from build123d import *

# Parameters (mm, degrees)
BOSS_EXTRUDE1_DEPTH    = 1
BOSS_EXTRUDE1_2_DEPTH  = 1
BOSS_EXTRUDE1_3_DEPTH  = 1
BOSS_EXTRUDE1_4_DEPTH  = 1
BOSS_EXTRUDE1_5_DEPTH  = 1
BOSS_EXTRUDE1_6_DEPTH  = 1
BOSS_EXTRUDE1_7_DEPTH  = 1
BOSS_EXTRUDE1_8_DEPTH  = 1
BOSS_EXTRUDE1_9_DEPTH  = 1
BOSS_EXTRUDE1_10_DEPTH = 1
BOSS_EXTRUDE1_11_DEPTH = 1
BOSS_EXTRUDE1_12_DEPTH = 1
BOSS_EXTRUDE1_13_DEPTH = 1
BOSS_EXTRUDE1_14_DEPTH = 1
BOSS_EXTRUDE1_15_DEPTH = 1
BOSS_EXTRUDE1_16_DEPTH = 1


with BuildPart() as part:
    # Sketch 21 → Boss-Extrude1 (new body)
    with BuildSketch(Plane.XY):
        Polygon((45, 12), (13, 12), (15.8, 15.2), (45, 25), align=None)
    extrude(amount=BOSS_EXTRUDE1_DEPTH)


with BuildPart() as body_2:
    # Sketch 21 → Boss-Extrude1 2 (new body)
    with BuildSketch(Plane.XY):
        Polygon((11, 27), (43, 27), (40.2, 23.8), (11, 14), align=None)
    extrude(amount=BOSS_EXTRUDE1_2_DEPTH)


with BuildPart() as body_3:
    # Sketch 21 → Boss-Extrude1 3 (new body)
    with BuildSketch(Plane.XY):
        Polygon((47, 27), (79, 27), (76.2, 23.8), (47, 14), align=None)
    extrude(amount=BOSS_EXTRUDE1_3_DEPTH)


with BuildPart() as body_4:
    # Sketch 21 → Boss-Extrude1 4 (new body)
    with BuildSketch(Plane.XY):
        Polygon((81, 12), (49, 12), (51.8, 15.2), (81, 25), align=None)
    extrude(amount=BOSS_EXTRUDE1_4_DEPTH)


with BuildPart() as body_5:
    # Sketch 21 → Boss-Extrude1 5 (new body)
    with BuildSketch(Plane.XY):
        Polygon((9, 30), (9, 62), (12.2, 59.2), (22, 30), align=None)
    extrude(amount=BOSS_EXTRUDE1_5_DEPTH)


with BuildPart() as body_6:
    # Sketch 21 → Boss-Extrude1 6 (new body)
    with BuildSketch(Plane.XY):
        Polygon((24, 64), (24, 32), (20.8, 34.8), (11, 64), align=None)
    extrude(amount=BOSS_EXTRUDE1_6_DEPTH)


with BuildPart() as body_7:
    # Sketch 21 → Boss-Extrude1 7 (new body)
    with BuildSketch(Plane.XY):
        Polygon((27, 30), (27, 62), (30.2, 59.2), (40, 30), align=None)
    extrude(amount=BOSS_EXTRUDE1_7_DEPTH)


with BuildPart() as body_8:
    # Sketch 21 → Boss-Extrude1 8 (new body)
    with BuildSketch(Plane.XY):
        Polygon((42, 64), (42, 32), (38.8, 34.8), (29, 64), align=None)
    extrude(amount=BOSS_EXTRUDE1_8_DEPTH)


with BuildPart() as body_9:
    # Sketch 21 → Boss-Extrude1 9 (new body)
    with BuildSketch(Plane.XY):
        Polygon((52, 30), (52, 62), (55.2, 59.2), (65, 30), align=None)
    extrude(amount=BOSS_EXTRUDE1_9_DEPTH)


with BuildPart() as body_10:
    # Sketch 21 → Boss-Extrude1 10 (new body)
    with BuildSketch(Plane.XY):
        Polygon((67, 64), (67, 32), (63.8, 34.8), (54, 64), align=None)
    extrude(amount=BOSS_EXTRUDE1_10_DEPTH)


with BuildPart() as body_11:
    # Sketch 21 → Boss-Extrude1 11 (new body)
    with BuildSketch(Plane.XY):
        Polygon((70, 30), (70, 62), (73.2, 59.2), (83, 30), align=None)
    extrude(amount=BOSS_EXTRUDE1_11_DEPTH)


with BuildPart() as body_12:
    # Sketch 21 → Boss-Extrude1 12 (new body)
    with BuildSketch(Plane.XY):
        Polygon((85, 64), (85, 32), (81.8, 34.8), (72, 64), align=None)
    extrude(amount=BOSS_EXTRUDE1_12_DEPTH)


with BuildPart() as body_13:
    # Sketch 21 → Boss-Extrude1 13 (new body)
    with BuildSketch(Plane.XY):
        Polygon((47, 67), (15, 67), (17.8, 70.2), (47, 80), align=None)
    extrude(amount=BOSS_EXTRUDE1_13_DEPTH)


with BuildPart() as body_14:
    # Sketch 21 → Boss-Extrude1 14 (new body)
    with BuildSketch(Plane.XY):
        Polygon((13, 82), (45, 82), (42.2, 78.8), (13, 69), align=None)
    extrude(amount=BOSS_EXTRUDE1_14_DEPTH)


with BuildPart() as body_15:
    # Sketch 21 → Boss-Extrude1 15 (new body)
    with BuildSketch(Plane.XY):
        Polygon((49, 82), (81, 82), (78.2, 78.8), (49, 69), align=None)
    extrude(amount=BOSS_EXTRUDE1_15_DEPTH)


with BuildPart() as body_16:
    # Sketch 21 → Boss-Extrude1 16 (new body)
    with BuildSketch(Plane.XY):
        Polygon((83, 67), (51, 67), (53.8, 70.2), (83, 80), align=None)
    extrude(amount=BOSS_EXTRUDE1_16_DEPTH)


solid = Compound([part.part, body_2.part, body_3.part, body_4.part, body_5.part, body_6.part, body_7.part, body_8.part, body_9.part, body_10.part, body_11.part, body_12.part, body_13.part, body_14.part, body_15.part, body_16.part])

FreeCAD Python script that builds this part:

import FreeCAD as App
import Part
import Sketcher

V = App.Vector

doc = App.newDocument("Part")
body = doc.addObject("PartDesign::Body", "Body")

# Sketch on XY plane
sketch1 = doc.addObject("Sketcher::SketchObject", "Sketch")
body.addObject(sketch1)
sketch1.AttachmentSupport = (doc.XY_Plane, [""])
sketch1.MapMode = "FlatFace"
sketch1.addGeometry([
    Part.LineSegment(V(13, 12, 0), V(45, 12, 0)),
    Part.LineSegment(V(45, 12, 0), V(45, 25, 0)),
    Part.LineSegment(V(45, 25, 0), V(15.8, 15.2, 0)),
    Part.LineSegment(V(15.8, 15.2, 0), V(13, 12, 0)),
], False)
sketch1.addConstraint([
    Sketcher.Constraint("Coincident", 0, 2, 1, 1),
    Sketcher.Constraint("Coincident", 1, 2, 2, 1),
    Sketcher.Constraint("Coincident", 2, 2, 3, 1),
    Sketcher.Constraint("Coincident", 3, 2, 0, 1),
    Sketcher.Constraint("Horizontal", 0),
    Sketcher.Constraint("Vertical", 1),
    Sketcher.Constraint("DistanceX", 0, 1, 0, 2, 32.0),
    Sketcher.Constraint("DistanceY", 1, 1, 1, 2, 13.0),
    Sketcher.Constraint("DistanceX", -1, 1, 0, 2, 45.0),
    Sketcher.Constraint("DistanceY", -1, 1, 0, 2, 12.0),
    Sketcher.Constraint("DistanceX", -1, 1, 2, 2, 15.8),
    Sketcher.Constraint("DistanceY", -1, 1, 2, 2, 15.2),
])
pad1 = doc.addObject("PartDesign::Pad", "Pad")
body.addObject(pad1)
pad1.Profile = sketch1
pad1.Length = 1
body2 = doc.addObject("PartDesign::Body", "Body001")

# Sketch on XY plane
sketch2 = doc.addObject("Sketcher::SketchObject", "Sketch001")
body2.addObject(sketch2)
sketch2.AttachmentSupport = (doc.getObject("XY_Plane001"), [""])
sketch2.MapMode = "FlatFace"
sketch2.addGeometry([
    Part.LineSegment(V(43, 27, 0), V(11, 27, 0)),
    Part.LineSegment(V(11, 27, 0), V(11, 14, 0)),
    Part.LineSegment(V(11, 14, 0), V(40.2, 23.8, 0)),
    Part.LineSegment(V(40.2, 23.8, 0), V(43, 27, 0)),
], False)
sketch2.addConstraint([
    Sketcher.Constraint("Coincident", 0, 2, 1, 1),
    Sketcher.Constraint("Coincident", 1, 2, 2, 1),
    Sketcher.Constraint("Coincident", 2, 2, 3, 1),
    Sketcher.Constraint("Coincident", 3, 2, 0, 1),
    Sketcher.Constraint("Horizontal", 0),
    Sketcher.Constraint("Vertical", 1),
    Sketcher.Constraint("DistanceX", 0, 2, 0, 1, 32.0),
    Sketcher.Constraint("DistanceY", 1, 2, 1, 1, 13.0),
    Sketcher.Constraint("DistanceX", -1, 1, 0, 2, 11.0),
    Sketcher.Constraint("DistanceY", -1, 1, 0, 2, 27.0),
    Sketcher.Constraint("DistanceX", -1, 1, 2, 2, 40.2),
    Sketcher.Constraint("DistanceY", -1, 1, 2, 2, 23.8),
])
pad2 = doc.addObject("PartDesign::Pad", "Pad001")
body2.addObject(pad2)
pad2.Profile = sketch2
pad2.Length = 1
body3 = doc.addObject("PartDesign::Body", "Body002")

# Sketch on XY plane
sketch3 = doc.addObject("Sketcher::SketchObject", "Sketch002")
body3.addObject(sketch3)
sketch3.AttachmentSupport = (doc.getObject("XY_Plane002"), [""])
sketch3.MapMode = "FlatFace"
sketch3.addGeometry([
    Part.LineSegment(V(79, 27, 0), V(47, 27, 0)),
    Part.LineSegment(V(47, 27, 0), V(47, 14, 0)),
    Part.LineSegment(V(47, 14, 0), V(76.2, 23.8, 0)),
    Part.LineSegment(V(76.2, 23.8, 0), V(79, 27, 0)),
], False)
sketch3.addConstraint([
    Sketcher.Constraint("Coincident", 0, 2, 1, 1),
    Sketcher.Constraint("Coincident", 1, 2, 2, 1),
    Sketcher.Constraint("Coincident", 2, 2, 3, 1),
    Sketcher.Constraint("Coincident", 3, 2, 0, 1),
    Sketcher.Constraint("Horizontal", 0),
    Sketcher.Constraint("Vertical", 1),
    Sketcher.Constraint("DistanceX", 0, 2, 0, 1, 32.0),
    Sketcher.Constraint("DistanceY", 1, 2, 1, 1, 13.0),
    Sketcher.Constraint("DistanceX", -1, 1, 0, 2, 47.0),
    Sketcher.Constraint("DistanceY", -1, 1, 0, 2, 27.0),
    Sketcher.Constraint("DistanceX", -1, 1, 2, 2, 76.2),
    Sketcher.Constraint("DistanceY", -1, 1, 2, 2, 23.8),
])
pad3 = doc.addObject("PartDesign::Pad", "Pad002")
body3.addObject(pad3)
pad3.Profile = sketch3
pad3.Length = 1
body4 = doc.addObject("PartDesign::Body", "Body003")

# Sketch on XY plane
sketch4 = doc.addObject("Sketcher::SketchObject", "Sketch003")
body4.addObject(sketch4)
sketch4.AttachmentSupport = (doc.getObject("XY_Plane003"), [""])
sketch4.MapMode = "FlatFace"
sketch4.addGeometry([
    Part.LineSegment(V(49, 12, 0), V(81, 12, 0)),
    Part.LineSegment(V(81, 12, 0), V(81, 25, 0)),
    Part.LineSegment(V(81, 25, 0), V(51.8, 15.2, 0)),
    Part.LineSegment(V(51.8, 15.2, 0), V(49, 12, 0)),
], False)
sketch4.addConstraint([
    Sketcher.Constraint("Coincident", 0, 2, 1, 1),
    Sketcher.Constraint("Coincident", 1, 2, 2, 1),
    Sketcher.Constraint("Coincident", 2, 2, 3, 1),
    Sketcher.Constraint("Coincident", 3, 2, 0, 1),
    Sketcher.Constraint("Horizontal", 0),
    Sketcher.Constraint("Vertical", 1),
    Sketcher.Constraint("DistanceX", 0, 1, 0, 2, 32.0),
    Sketcher.Constraint("DistanceY", 1, 1, 1, 2, 13.0),
    Sketcher.Constraint("DistanceX", -1, 1, 0, 2, 81.0),
    Sketcher.Constraint("DistanceY", -1, 1, 0, 2, 12.0),
    Sketcher.Constraint("DistanceX", -1, 1, 2, 2, 51.8),
    Sketcher.Constraint("DistanceY", -1, 1, 2, 2, 15.2),
])
pad4 = doc.addObject("PartDesign::Pad", "Pad003")
body4.addObject(pad4)
pad4.Profile = sketch4
pad4.Length = 1
body5 = doc.addObject("PartDesign::Body", "Body004")

# Sketch on XY plane
sketch5 = doc.addObject("Sketcher::SketchObject", "Sketch004")
body5.addObject(sketch5)
sketch5.AttachmentSupport = (doc.getObject("XY_Plane004"), [""])
sketch5.MapMode = "FlatFace"
sketch5.addGeometry([
    Part.LineSegment(V(9, 62, 0), V(9, 30, 0)),
    Part.LineSegment(V(9, 30, 0), V(22, 30, 0)),
    Part.LineSegment(V(22, 30, 0), V(12.2, 59.2, 0)),
    Part.LineSegment(V(12.2, 59.2, 0), V(9, 62, 0)),
], False)
sketch5.addConstraint([
    Sketcher.Constraint("Coincident", 0, 2, 1, 1),
    Sketcher.Constraint("Coincident", 1, 2, 2, 1),
    Sketcher.Constraint("Coincident", 2, 2, 3, 1),
    Sketcher.Constraint("Coincident", 3, 2, 0, 1),
    Sketcher.Constraint("Vertical", 0),
    Sketcher.Constraint("Horizontal", 1),
    Sketcher.Constraint("DistanceX", 1, 1, 1, 2, 13.0),
    Sketcher.Constraint("DistanceY", 0, 2, 0, 1, 32.0),
    Sketcher.Constraint("DistanceX", -1, 1, 0, 2, 9.0),
    Sketcher.Constraint("DistanceY", -1, 1, 0, 2, 30.0),
    Sketcher.Constraint("DistanceX", -1, 1, 2, 2, 12.2),
    Sketcher.Constraint("DistanceY", -1, 1, 2, 2, 59.2),
])
pad5 = doc.addObject("PartDesign::Pad", "Pad004")
body5.addObject(pad5)
pad5.Profile = sketch5
pad5.Length = 1
body6 = doc.addObject("PartDesign::Body", "Body005")

# Sketch on XY plane
sketch6 = doc.addObject("Sketcher::SketchObject", "Sketch005")
body6.addObject(sketch6)
sketch6.AttachmentSupport = (doc.getObject("XY_Plane005"), [""])
sketch6.MapMode = "FlatFace"
sketch6.addGeometry([
    Part.LineSegment(V(24, 32, 0), V(24, 64, 0)),
    Part.LineSegment(V(24, 64, 0), V(11, 64, 0)),
    Part.LineSegment(V(11, 64, 0), V(20.8, 34.8, 0)),
    Part.LineSegment(V(20.8, 34.8, 0), V(24, 32, 0)),
], False)
sketch6.addConstraint([
    Sketcher.Constraint("Coincident", 0, 2, 1, 1),
    Sketcher.Constraint("Coincident", 1, 2, 2, 1),
    Sketcher.Constraint("Coincident", 2, 2, 3, 1),
    Sketcher.Constraint("Coincident", 3, 2, 0, 1),
    Sketcher.Constraint("Vertical", 0),
    Sketcher.Constraint("Horizontal", 1),
    Sketcher.Constraint("DistanceX", 1, 2, 1, 1, 13.0),
    Sketcher.Constraint("DistanceY", 0, 1, 0, 2, 32.0),
    Sketcher.Constraint("DistanceX", -1, 1, 0, 2, 24.0),
    Sketcher.Constraint("DistanceY", -1, 1, 0, 2, 64.0),
    Sketcher.Constraint("DistanceX", -1, 1, 2, 2, 20.8),
    Sketcher.Constraint("DistanceY", -1, 1, 2, 2, 34.8),
])
pad6 = doc.addObject("PartDesign::Pad", "Pad005")
body6.addObject(pad6)
pad6.Profile = sketch6
pad6.Length = 1
body7 = doc.addObject("PartDesign::Body", "Body006")

# Sketch on XY plane
sketch7 = doc.addObject("Sketcher::SketchObject", "Sketch006")
body7.addObject(sketch7)
sketch7.AttachmentSupport = (doc.getObject("XY_Plane006"), [""])
sketch7.MapMode = "FlatFace"
sketch7.addGeometry([
    Part.LineSegment(V(27, 62, 0), V(27, 30, 0)),
    Part.LineSegment(V(27, 30, 0), V(40, 30, 0)),
    Part.LineSegment(V(40, 30, 0), V(30.2, 59.2, 0)),
    Part.LineSegment(V(30.2, 59.2, 0), V(27, 62, 0)),
], False)
sketch7.addConstraint([
    Sketcher.Constraint("Coincident", 0, 2, 1, 1),
    Sketcher.Constraint("Coincident", 1, 2, 2, 1),
    Sketcher.Constraint("Coincident", 2, 2, 3, 1),
    Sketcher.Constraint("Coincident", 3, 2, 0, 1),
    Sketcher.Constraint("Vertical", 0),
    Sketcher.Constraint("Horizontal", 1),
    Sketcher.Constraint("DistanceX", 1, 1, 1, 2, 13.0),
    Sketcher.Constraint("DistanceY", 0, 2, 0, 1, 32.0),
    Sketcher.Constraint("DistanceX", -1, 1, 0, 2, 27.0),
    Sketcher.Constraint("DistanceY", -1, 1, 0, 2, 30.0),
    Sketcher.Constraint("DistanceX", -1, 1, 2, 2, 30.2),
    Sketcher.Constraint("DistanceY", -1, 1, 2, 2, 59.2),
])
pad7 = doc.addObject("PartDesign::Pad", "Pad006")
body7.addObject(pad7)
pad7.Profile = sketch7
pad7.Length = 1
body8 = doc.addObject("PartDesign::Body", "Body007")

# Sketch on XY plane
sketch8 = doc.addObject("Sketcher::SketchObject", "Sketch007")
body8.addObject(sketch8)
sketch8.AttachmentSupport = (doc.getObject("XY_Plane007"), [""])
sketch8.MapMode = "FlatFace"
sketch8.addGeometry([
    Part.LineSegment(V(42, 32, 0), V(42, 64, 0)),
    Part.LineSegment(V(42, 64, 0), V(29, 64, 0)),
    Part.LineSegment(V(29, 64, 0), V(38.8, 34.8, 0)),
    Part.LineSegment(V(38.8, 34.8, 0), V(42, 32, 0)),
], False)
sketch8.addConstraint([
    Sketcher.Constraint("Coincident", 0, 2, 1, 1),
    Sketcher.Constraint("Coincident", 1, 2, 2, 1),
    Sketcher.Constraint("Coincident", 2, 2, 3, 1),
    Sketcher.Constraint("Coincident", 3, 2, 0, 1),
    Sketcher.Constraint("Vertical", 0),
    Sketcher.Constraint("Horizontal", 1),
    Sketcher.Constraint("DistanceX", 1, 2, 1, 1, 13.0),
    Sketcher.Constraint("DistanceY", 0, 1, 0, 2, 32.0),
    Sketcher.Constraint("DistanceX", -1, 1, 0, 2, 42.0),
    Sketcher.Constraint("DistanceY", -1, 1, 0, 2, 64.0),
    Sketcher.Constraint("DistanceX", -1, 1, 2, 2, 38.8),
    Sketcher.Constraint("DistanceY", -1, 1, 2, 2, 34.8),
])
pad8 = doc.addObject("PartDesign::Pad", "Pad007")
body8.addObject(pad8)
pad8.Profile = sketch8
pad8.Length = 1
body9 = doc.addObject("PartDesign::Body", "Body008")

# Sketch on XY plane
sketch9 = doc.addObject("Sketcher::SketchObject", "Sketch008")
body9.addObject(sketch9)
sketch9.AttachmentSupport = (doc.getObject("XY_Plane008"), [""])
sketch9.MapMode = "FlatFace"
sketch9.addGeometry([
    Part.LineSegment(V(52, 62, 0), V(52, 30, 0)),
    Part.LineSegment(V(52, 30, 0), V(65, 30, 0)),
    Part.LineSegment(V(65, 30, 0), V(55.2, 59.2, 0)),
    Part.LineSegment(V(55.2, 59.2, 0), V(52, 62, 0)),
], False)
sketch9.addConstraint([
    Sketcher.Constraint("Coincident", 0, 2, 1, 1),
    Sketcher.Constraint("Coincident", 1, 2, 2, 1),
    Sketcher.Constraint("Coincident", 2, 2, 3, 1),
    Sketcher.Constraint("Coincident", 3, 2, 0, 1),
    Sketcher.Constraint("Vertical", 0),
    Sketcher.Constraint("Horizontal", 1),
    Sketcher.Constraint("DistanceX", 1, 1, 1, 2, 13.0),
    Sketcher.Constraint("DistanceY", 0, 2, 0, 1, 32.0),
    Sketcher.Constraint("DistanceX", -1, 1, 0, 2, 52.0),
    Sketcher.Constraint("DistanceY", -1, 1, 0, 2, 30.0),
    Sketcher.Constraint("DistanceX", -1, 1, 2, 2, 55.2),
    Sketcher.Constraint("DistanceY", -1, 1, 2, 2, 59.2),
])
pad9 = doc.addObject("PartDesign::Pad", "Pad008")
body9.addObject(pad9)
pad9.Profile = sketch9
pad9.Length = 1
body10 = doc.addObject("PartDesign::Body", "Body009")

# Sketch on XY plane
sketch10 = doc.addObject("Sketcher::SketchObject", "Sketch009")
body10.addObject(sketch10)
sketch10.AttachmentSupport = (doc.getObject("XY_Plane009"), [""])
sketch10.MapMode = "FlatFace"
sketch10.addGeometry([
    Part.LineSegment(V(67, 32, 0), V(67, 64, 0)),
    Part.LineSegment(V(67, 64, 0), V(54, 64, 0)),
    Part.LineSegment(V(54, 64, 0), V(63.8, 34.8, 0)),
    Part.LineSegment(V(63.8, 34.8, 0), V(67, 32, 0)),
], False)
sketch10.addConstraint([
    Sketcher.Constraint("Coincident", 0, 2, 1, 1),
    Sketcher.Constraint("Coincident", 1, 2, 2, 1),
    Sketcher.Constraint("Coincident", 2, 2, 3, 1),
    Sketcher.Constraint("Coincident", 3, 2, 0, 1),
    Sketcher.Constraint("Vertical", 0),
    Sketcher.Constraint("Horizontal", 1),
    Sketcher.Constraint("DistanceX", 1, 2, 1, 1, 13.0),
    Sketcher.Constraint("DistanceY", 0, 1, 0, 2, 32.0),
    Sketcher.Constraint("DistanceX", -1, 1, 0, 2, 67.0),
    Sketcher.Constraint("DistanceY", -1, 1, 0, 2, 64.0),
    Sketcher.Constraint("DistanceX", -1, 1, 2, 2, 63.8),
    Sketcher.Constraint("DistanceY", -1, 1, 2, 2, 34.8),
])
pad10 = doc.addObject("PartDesign::Pad", "Pad009")
body10.addObject(pad10)
pad10.Profile = sketch10
pad10.Length = 1
body11 = doc.addObject("PartDesign::Body", "Body010")

# Sketch on XY plane
sketch11 = doc.addObject("Sketcher::SketchObject", "Sketch010")
body11.addObject(sketch11)
sketch11.AttachmentSupport = (doc.getObject("XY_Plane010"), [""])
sketch11.MapMode = "FlatFace"
sketch11.addGeometry([
    Part.LineSegment(V(70, 62, 0), V(70, 30, 0)),
    Part.LineSegment(V(70, 30, 0), V(83, 30, 0)),
    Part.LineSegment(V(83, 30, 0), V(73.2, 59.2, 0)),
    Part.LineSegment(V(73.2, 59.2, 0), V(70, 62, 0)),
], False)
sketch11.addConstraint([
    Sketcher.Constraint("Coincident", 0, 2, 1, 1),
    Sketcher.Constraint("Coincident", 1, 2, 2, 1),
    Sketcher.Constraint("Coincident", 2, 2, 3, 1),
    Sketcher.Constraint("Coincident", 3, 2, 0, 1),
    Sketcher.Constraint("Vertical", 0),
    Sketcher.Constraint("Horizontal", 1),
    Sketcher.Constraint("DistanceX", 1, 1, 1, 2, 13.0),
    Sketcher.Constraint("DistanceY", 0, 2, 0, 1, 32.0),
    Sketcher.Constraint("DistanceX", -1, 1, 0, 2, 70.0),
    Sketcher.Constraint("DistanceY", -1, 1, 0, 2, 30.0),
    Sketcher.Constraint("DistanceX", -1, 1, 2, 2, 73.2),
    Sketcher.Constraint("DistanceY", -1, 1, 2, 2, 59.2),
])
pad11 = doc.addObject("PartDesign::Pad", "Pad010")
body11.addObject(pad11)
pad11.Profile = sketch11
pad11.Length = 1
body12 = doc.addObject("PartDesign::Body", "Body011")

# Sketch on XY plane
sketch12 = doc.addObject("Sketcher::SketchObject", "Sketch011")
body12.addObject(sketch12)
sketch12.AttachmentSupport = (doc.getObject("XY_Plane011"), [""])
sketch12.MapMode = "FlatFace"
sketch12.addGeometry([
    Part.LineSegment(V(85, 32, 0), V(85, 64, 0)),
    Part.LineSegment(V(85, 64, 0), V(72, 64, 0)),
    Part.LineSegment(V(72, 64, 0), V(81.8, 34.8, 0)),
    Part.LineSegment(V(81.8, 34.8, 0), V(85, 32, 0)),
], False)
sketch12.addConstraint([
    Sketcher.Constraint("Coincident", 0, 2, 1, 1),
    Sketcher.Constraint("Coincident", 1, 2, 2, 1),
    Sketcher.Constraint("Coincident", 2, 2, 3, 1),
    Sketcher.Constraint("Coincident", 3, 2, 0, 1),
    Sketcher.Constraint("Vertical", 0),
    Sketcher.Constraint("Horizontal", 1),
    Sketcher.Constraint("DistanceX", 1, 2, 1, 1, 13.0),
    Sketcher.Constraint("DistanceY", 0, 1, 0, 2, 32.0),
    Sketcher.Constraint("DistanceX", -1, 1, 0, 2, 85.0),
    Sketcher.Constraint("DistanceY", -1, 1, 0, 2, 64.0),
    Sketcher.Constraint("DistanceX", -1, 1, 2, 2, 81.8),
    Sketcher.Constraint("DistanceY", -1, 1, 2, 2, 34.8),
])
pad12 = doc.addObject("PartDesign::Pad", "Pad011")
body12.addObject(pad12)
pad12.Profile = sketch12
pad12.Length = 1
body13 = doc.addObject("PartDesign::Body", "Body012")

# Sketch on XY plane
sketch13 = doc.addObject("Sketcher::SketchObject", "Sketch012")
body13.addObject(sketch13)
sketch13.AttachmentSupport = (doc.getObject("XY_Plane012"), [""])
sketch13.MapMode = "FlatFace"
sketch13.addGeometry([
    Part.LineSegment(V(15, 67, 0), V(47, 67, 0)),
    Part.LineSegment(V(47, 67, 0), V(47, 80, 0)),
    Part.LineSegment(V(47, 80, 0), V(17.8, 70.2, 0)),
    Part.LineSegment(V(17.8, 70.2, 0), V(15, 67, 0)),
], False)
sketch13.addConstraint([
    Sketcher.Constraint("Coincident", 0, 2, 1, 1),
    Sketcher.Constraint("Coincident", 1, 2, 2, 1),
    Sketcher.Constraint("Coincident", 2, 2, 3, 1),
    Sketcher.Constraint("Coincident", 3, 2, 0, 1),
    Sketcher.Constraint("Horizontal", 0),
    Sketcher.Constraint("Vertical", 1),
    Sketcher.Constraint("DistanceX", 0, 1, 0, 2, 32.0),
    Sketcher.Constraint("DistanceY", 1, 1, 1, 2, 13.0),
    Sketcher.Constraint("DistanceX", -1, 1, 0, 2, 47.0),
    Sketcher.Constraint("DistanceY", -1, 1, 0, 2, 67.0),
    Sketcher.Constraint("DistanceX", -1, 1, 2, 2, 17.8),
    Sketcher.Constraint("DistanceY", -1, 1, 2, 2, 70.2),
])
pad13 = doc.addObject("PartDesign::Pad", "Pad012")
body13.addObject(pad13)
pad13.Profile = sketch13
pad13.Length = 1
body14 = doc.addObject("PartDesign::Body", "Body013")

# Sketch on XY plane
sketch14 = doc.addObject("Sketcher::SketchObject", "Sketch013")
body14.addObject(sketch14)
sketch14.AttachmentSupport = (doc.getObject("XY_Plane013"), [""])
sketch14.MapMode = "FlatFace"
sketch14.addGeometry([
    Part.LineSegment(V(45, 82, 0), V(13, 82, 0)),
    Part.LineSegment(V(13, 82, 0), V(13, 69, 0)),
    Part.LineSegment(V(13, 69, 0), V(42.2, 78.8, 0)),
    Part.LineSegment(V(42.2, 78.8, 0), V(45, 82, 0)),
], False)
sketch14.addConstraint([
    Sketcher.Constraint("Coincident", 0, 2, 1, 1),
    Sketcher.Constraint("Coincident", 1, 2, 2, 1),
    Sketcher.Constraint("Coincident", 2, 2, 3, 1),
    Sketcher.Constraint("Coincident", 3, 2, 0, 1),
    Sketcher.Constraint("Horizontal", 0),
    Sketcher.Constraint("Vertical", 1),
    Sketcher.Constraint("DistanceX", 0, 2, 0, 1, 32.0),
    Sketcher.Constraint("DistanceY", 1, 2, 1, 1, 13.0),
    Sketcher.Constraint("DistanceX", -1, 1, 0, 2, 13.0),
    Sketcher.Constraint("DistanceY", -1, 1, 0, 2, 82.0),
    Sketcher.Constraint("DistanceX", -1, 1, 2, 2, 42.2),
    Sketcher.Constraint("DistanceY", -1, 1, 2, 2, 78.8),
])
pad14 = doc.addObject("PartDesign::Pad", "Pad013")
body14.addObject(pad14)
pad14.Profile = sketch14
pad14.Length = 1
body15 = doc.addObject("PartDesign::Body", "Body014")

# Sketch on XY plane
sketch15 = doc.addObject("Sketcher::SketchObject", "Sketch014")
body15.addObject(sketch15)
sketch15.AttachmentSupport = (doc.getObject("XY_Plane014"), [""])
sketch15.MapMode = "FlatFace"
sketch15.addGeometry([
    Part.LineSegment(V(81, 82, 0), V(49, 82, 0)),
    Part.LineSegment(V(49, 82, 0), V(49, 69, 0)),
    Part.LineSegment(V(49, 69, 0), V(78.2, 78.8, 0)),
    Part.LineSegment(V(78.2, 78.8, 0), V(81, 82, 0)),
], False)
sketch15.addConstraint([
    Sketcher.Constraint("Coincident", 0, 2, 1, 1),
    Sketcher.Constraint("Coincident", 1, 2, 2, 1),
    Sketcher.Constraint("Coincident", 2, 2, 3, 1),
    Sketcher.Constraint("Coincident", 3, 2, 0, 1),
    Sketcher.Constraint("Horizontal", 0),
    Sketcher.Constraint("Vertical", 1),
    Sketcher.Constraint("DistanceX", 0, 2, 0, 1, 32.0),
    Sketcher.Constraint("DistanceY", 1, 2, 1, 1, 13.0),
    Sketcher.Constraint("DistanceX", -1, 1, 0, 2, 49.0),
    Sketcher.Constraint("DistanceY", -1, 1, 0, 2, 82.0),
    Sketcher.Constraint("DistanceX", -1, 1, 2, 2, 78.2),
    Sketcher.Constraint("DistanceY", -1, 1, 2, 2, 78.8),
])
pad15 = doc.addObject("PartDesign::Pad", "Pad014")
body15.addObject(pad15)
pad15.Profile = sketch15
pad15.Length = 1
body16 = doc.addObject("PartDesign::Body", "Body015")

# Sketch on XY plane
sketch16 = doc.addObject("Sketcher::SketchObject", "Sketch015")
body16.addObject(sketch16)
sketch16.AttachmentSupport = (doc.getObject("XY_Plane015"), [""])
sketch16.MapMode = "FlatFace"
sketch16.addGeometry([
    Part.LineSegment(V(51, 67, 0), V(83, 67, 0)),
    Part.LineSegment(V(83, 67, 0), V(83, 80, 0)),
    Part.LineSegment(V(83, 80, 0), V(53.8, 70.2, 0)),
    Part.LineSegment(V(53.8, 70.2, 0), V(51, 67, 0)),
], False)
sketch16.addConstraint([
    Sketcher.Constraint("Coincident", 0, 2, 1, 1),
    Sketcher.Constraint("Coincident", 1, 2, 2, 1),
    Sketcher.Constraint("Coincident", 2, 2, 3, 1),
    Sketcher.Constraint("Coincident", 3, 2, 0, 1),
    Sketcher.Constraint("Horizontal", 0),
    Sketcher.Constraint("Vertical", 1),
    Sketcher.Constraint("DistanceX", 0, 1, 0, 2, 32.0),
    Sketcher.Constraint("DistanceY", 1, 1, 1, 2, 13.0),
    Sketcher.Constraint("DistanceX", -1, 1, 0, 2, 83.0),
    Sketcher.Constraint("DistanceY", -1, 1, 0, 2, 67.0),
    Sketcher.Constraint("DistanceX", -1, 1, 2, 2, 53.8),
    Sketcher.Constraint("DistanceY", -1, 1, 2, 2, 70.2),
])
pad16 = doc.addObject("PartDesign::Pad", "Pad015")
body16.addObject(pad16)
pad16.Profile = sketch16
pad16.Length = 1

doc.recompute()
